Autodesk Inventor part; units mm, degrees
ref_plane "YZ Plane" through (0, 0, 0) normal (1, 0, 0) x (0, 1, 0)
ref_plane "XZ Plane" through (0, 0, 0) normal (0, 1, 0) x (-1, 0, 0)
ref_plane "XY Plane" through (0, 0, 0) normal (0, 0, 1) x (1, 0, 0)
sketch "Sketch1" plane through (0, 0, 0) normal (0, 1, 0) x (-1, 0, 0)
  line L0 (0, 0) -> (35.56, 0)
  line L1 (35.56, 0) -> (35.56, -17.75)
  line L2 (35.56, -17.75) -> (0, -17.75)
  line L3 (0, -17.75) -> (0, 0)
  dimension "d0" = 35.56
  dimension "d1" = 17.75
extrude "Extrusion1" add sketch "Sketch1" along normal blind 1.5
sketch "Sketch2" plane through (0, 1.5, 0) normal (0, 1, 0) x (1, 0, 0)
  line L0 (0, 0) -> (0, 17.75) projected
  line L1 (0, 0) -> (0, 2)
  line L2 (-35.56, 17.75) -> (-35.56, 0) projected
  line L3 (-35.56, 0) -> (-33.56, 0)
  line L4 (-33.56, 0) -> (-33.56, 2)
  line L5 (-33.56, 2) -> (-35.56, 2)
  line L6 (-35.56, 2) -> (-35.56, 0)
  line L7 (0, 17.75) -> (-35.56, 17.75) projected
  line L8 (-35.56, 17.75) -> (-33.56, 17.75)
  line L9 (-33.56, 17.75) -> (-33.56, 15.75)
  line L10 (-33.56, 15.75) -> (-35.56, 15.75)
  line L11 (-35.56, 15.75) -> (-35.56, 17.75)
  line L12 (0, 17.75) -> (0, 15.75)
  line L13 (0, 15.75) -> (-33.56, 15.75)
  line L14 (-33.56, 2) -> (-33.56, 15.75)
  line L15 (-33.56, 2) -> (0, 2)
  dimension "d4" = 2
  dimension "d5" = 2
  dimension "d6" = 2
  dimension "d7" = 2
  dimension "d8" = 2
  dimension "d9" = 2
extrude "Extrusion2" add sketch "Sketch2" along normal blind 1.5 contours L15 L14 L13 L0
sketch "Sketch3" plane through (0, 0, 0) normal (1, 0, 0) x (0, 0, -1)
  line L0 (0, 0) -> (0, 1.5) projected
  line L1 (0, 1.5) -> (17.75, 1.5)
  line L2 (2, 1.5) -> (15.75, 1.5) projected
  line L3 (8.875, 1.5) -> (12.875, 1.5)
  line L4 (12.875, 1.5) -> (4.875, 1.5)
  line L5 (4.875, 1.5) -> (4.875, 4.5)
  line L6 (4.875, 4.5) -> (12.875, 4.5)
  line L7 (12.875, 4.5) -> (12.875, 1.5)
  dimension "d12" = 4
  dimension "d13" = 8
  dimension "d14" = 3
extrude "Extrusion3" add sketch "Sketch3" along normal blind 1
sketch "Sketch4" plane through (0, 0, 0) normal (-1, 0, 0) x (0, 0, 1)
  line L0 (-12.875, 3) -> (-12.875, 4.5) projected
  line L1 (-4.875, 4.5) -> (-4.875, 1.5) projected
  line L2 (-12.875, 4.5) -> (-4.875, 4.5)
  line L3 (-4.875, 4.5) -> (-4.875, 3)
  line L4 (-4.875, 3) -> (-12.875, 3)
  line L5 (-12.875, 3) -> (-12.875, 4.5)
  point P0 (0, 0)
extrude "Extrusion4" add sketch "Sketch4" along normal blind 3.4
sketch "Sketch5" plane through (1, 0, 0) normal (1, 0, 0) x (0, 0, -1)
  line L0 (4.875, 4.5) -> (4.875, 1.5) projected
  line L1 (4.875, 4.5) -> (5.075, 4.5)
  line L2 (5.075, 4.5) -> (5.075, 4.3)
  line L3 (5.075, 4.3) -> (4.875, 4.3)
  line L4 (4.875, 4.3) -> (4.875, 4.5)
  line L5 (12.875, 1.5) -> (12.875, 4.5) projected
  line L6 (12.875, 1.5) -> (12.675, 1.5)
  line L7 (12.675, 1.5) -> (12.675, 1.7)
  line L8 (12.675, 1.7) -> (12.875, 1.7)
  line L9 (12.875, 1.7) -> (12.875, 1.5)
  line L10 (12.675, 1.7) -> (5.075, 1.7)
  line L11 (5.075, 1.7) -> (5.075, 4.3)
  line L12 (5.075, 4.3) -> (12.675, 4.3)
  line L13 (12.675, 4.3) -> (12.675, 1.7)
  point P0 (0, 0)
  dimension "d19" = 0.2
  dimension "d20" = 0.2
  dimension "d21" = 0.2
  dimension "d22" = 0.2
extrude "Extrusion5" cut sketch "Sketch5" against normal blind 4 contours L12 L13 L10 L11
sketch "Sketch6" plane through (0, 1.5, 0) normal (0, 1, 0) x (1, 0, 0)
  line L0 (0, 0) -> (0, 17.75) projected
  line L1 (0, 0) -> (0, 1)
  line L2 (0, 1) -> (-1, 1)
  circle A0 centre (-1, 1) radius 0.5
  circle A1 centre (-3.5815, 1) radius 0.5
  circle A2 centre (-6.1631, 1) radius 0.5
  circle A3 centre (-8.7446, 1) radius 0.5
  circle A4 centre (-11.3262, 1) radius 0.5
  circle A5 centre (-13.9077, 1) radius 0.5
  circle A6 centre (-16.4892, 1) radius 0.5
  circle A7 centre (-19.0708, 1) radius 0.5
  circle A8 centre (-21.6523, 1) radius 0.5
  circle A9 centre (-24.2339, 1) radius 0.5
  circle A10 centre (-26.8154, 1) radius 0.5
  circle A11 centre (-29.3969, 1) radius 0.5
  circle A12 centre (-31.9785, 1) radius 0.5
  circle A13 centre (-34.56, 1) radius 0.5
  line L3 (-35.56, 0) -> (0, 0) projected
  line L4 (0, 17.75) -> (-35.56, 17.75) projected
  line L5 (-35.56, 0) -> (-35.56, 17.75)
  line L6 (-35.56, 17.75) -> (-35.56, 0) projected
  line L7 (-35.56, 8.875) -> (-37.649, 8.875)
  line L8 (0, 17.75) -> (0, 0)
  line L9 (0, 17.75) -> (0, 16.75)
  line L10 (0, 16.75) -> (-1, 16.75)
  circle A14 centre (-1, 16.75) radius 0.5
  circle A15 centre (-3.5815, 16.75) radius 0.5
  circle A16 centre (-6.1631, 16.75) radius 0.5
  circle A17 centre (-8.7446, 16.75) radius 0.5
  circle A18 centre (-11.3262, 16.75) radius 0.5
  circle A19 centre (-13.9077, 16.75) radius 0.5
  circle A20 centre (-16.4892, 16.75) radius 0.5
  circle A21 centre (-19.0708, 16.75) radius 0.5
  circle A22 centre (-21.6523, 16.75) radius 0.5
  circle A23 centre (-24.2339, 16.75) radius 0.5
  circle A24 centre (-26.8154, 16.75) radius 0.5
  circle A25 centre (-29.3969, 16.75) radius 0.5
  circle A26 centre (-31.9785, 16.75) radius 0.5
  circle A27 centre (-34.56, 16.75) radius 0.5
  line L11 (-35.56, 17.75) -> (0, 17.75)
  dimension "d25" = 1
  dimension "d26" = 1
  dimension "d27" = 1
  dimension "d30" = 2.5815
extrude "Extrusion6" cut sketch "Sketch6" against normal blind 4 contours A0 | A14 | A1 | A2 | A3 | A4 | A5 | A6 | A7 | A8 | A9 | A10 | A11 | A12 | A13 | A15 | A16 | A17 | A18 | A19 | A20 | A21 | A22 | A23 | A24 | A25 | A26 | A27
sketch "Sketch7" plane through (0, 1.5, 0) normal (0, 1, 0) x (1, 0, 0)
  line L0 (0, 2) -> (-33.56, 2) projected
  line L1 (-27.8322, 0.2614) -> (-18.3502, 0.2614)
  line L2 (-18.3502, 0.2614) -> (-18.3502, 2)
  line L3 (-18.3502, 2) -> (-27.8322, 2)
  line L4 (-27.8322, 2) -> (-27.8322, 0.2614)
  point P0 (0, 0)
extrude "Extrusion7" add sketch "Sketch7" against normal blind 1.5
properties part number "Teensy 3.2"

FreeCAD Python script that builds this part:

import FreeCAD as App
import Part
import Sketcher
Q = App.Units.Quantity

doc = App.newDocument("Part")
body = doc.addObject("PartDesign::Body", "Body")

sketch1 = body.newObject("Sketcher::SketchObject", "Sketch")
sketch1.AttachmentSupport = (doc.getObject("XZ_Plane"), [""])
sketch1.MapMode = "FlatFace"
sketch1.addGeometry(Part.LineSegment(App.Vector(-35.56, 0, 0), App.Vector(0, 0, 0)), False)
sketch1.addGeometry(Part.LineSegment(App.Vector(0, 0, 0), App.Vector(0, -17.75, 0)), False)
sketch1.addGeometry(Part.LineSegment(App.Vector(0, -17.75, 0), App.Vector(-35.56, -17.75, 0)), False)
sketch1.addGeometry(Part.LineSegment(App.Vector(-35.56, -17.75, 0), App.Vector(-35.56, 0, 0)), False)
sketch1.addConstraint(Sketcher.Constraint("Coincident", 0, 2, 1, 1))
sketch1.addConstraint(Sketcher.Constraint("Coincident", 1, 2, 2, 1))
sketch1.addConstraint(Sketcher.Constraint("Coincident", 2, 2, 3, 1))
sketch1.addConstraint(Sketcher.Constraint("Coincident", 3, 2, 0, 1))
sketch1.addConstraint(Sketcher.Constraint("Horizontal", 0))
sketch1.addConstraint(Sketcher.Constraint("Vertical", 1))
sketch1.addConstraint(Sketcher.Constraint("Horizontal", 2))
sketch1.addConstraint(Sketcher.Constraint("Vertical", 3))
sketch1.addConstraint(Sketcher.Constraint("Coincident", 0, 2, -1, 1))
sketch1.addConstraint(Sketcher.Constraint("DistanceX", 0, 1, 0, 2, Q("35.56 mm")))
sketch1.addConstraint(Sketcher.Constraint("DistanceY", 1, 2, 1, 1, Q("17.75 mm")))
pad1 = body.newObject("PartDesign::Pad", "Pad")
pad1.Profile = sketch1
pad1.Length = 1.5
pad1.Reversed = True

sketch2 = body.newObject("Sketcher::SketchObject", "Sketch001")
sketch2.AttachmentSupport = (doc.getObject("XZ_Plane"), [""])
sketch2.MapMode = "FlatFace"
sketch2.AttachmentOffset = App.Placement(App.Vector(0, 0, -1.5), App.Rotation())
sketch2.addGeometry(Part.LineSegment(App.Vector(-33.56, -2, 0), App.Vector(0, -2, 0)), False)
sketch2.addGeometry(Part.LineSegment(App.Vector(0, -2, 0), App.Vector(0, -15.75, 0)), False)
sketch2.addGeometry(Part.LineSegment(App.Vector(0, -15.75, 0), App.Vector(-33.56, -15.75, 0)), False)
sketch2.addGeometry(Part.LineSegment(App.Vector(-33.56, -15.75, 0), App.Vector(-33.56, -2, 0)), False)
sketch2.addConstraint(Sketcher.Constraint("Coincident", 0, 2, 1, 1))
sketch2.addConstraint(Sketcher.Constraint("Coincident", 1, 2, 2, 1))
sketch2.addConstraint(Sketcher.Constraint("Coincident", 2, 2, 3, 1))
sketch2.addConstraint(Sketcher.Constraint("Coincident", 3, 2, 0, 1))
sketch2.addConstraint(Sketcher.Constraint("Horizontal", 0))
sketch2.addConstraint(Sketcher.Constraint("Vertical", 1))
sketch2.addConstraint(Sketcher.Constraint("Horizontal", 2))
sketch2.addConstraint(Sketcher.Constraint("Vertical", 3))
sketch2.addConstraint(Sketcher.Constraint("PointOnObject", 0, 2, -2))
sketch2.addConstraint(Sketcher.Constraint("DistanceY", 0, 2, -1, 1, Q("2 mm")))
sketch2.addConstraint(Sketcher.Constraint("DistanceX", 0, 1, 0, 2, Q("33.56 mm")))
sketch2.addConstraint(Sketcher.Constraint("DistanceY", 1, 2, 1, 1, Q("13.75 mm")))
pad2 = body.newObject("PartDesign::Pad", "Pad001")
pad2.Profile = sketch2
pad2.Length = 1.5
pad2.Reversed = True

sketch3 = body.newObject("Sketcher::SketchObject", "Sketch002")
sketch3.AttachmentSupport = (doc.getObject("YZ_Plane"), [""])
sketch3.MapMode = "FlatFace"
sketch3.addGeometry(Part.LineSegment(App.Vector(4.5, -4.875, 0), App.Vector(1.5, -4.875, 0)), False)
sketch3.addGeometry(Part.LineSegment(App.Vector(1.5, -4.875, 0), App.Vector(1.5, -12.875, 0)), False)
sketch3.addGeometry(Part.LineSegment(App.Vector(1.5, -12.875, 0), App.Vector(4.5, -12.875, 0)), False)
sketch3.addGeometry(Part.LineSegment(App.Vector(4.5, -12.875, 0), App.Vector(4.5, -4.875, 0)), False)
sketch3.addConstraint(Sketcher.Constraint("Coincident", 0, 2, 1, 1))
sketch3.addConstraint(Sketcher.Constraint("Coincident", 1, 2, 2, 1))
sketch3.addConstraint(Sketcher.Constraint("Coincident", 2, 2, 3, 1))
sketch3.addConstraint(Sketcher.Constraint("Coincident", 3, 2, 0, 1))
sketch3.addConstraint(Sketcher.Constraint("Horizontal", 0))
sketch3.addConstraint(Sketcher.Constraint("Vertical", 1))
sketch3.addConstraint(Sketcher.Constraint("Horizontal", 2))
sketch3.addConstraint(Sketcher.Constraint("Vertical", 3))
sketch3.addConstraint(Sketcher.Constraint("DistanceX", 0, 2, 0, 1, Q("3 mm")))
sketch3.addConstraint(Sketcher.Constraint("DistanceY", 1, 2, 1, 1, Q("8 mm")))
sketch3.addConstraint(Sketcher.Constraint("DistanceX", -1, 1, 0, 2, Q("1.5 mm")))
sketch3.addConstraint(Sketcher.Constraint("DistanceY", 0, 2, -1, 1, Q("4.875 mm")))
pad3 = body.newObject("PartDesign::Pad", "Pad002")
pad3.Profile = sketch3
pad3.Length = 1

sketch4 = body.newObject("Sketcher::SketchObject", "Sketch003")
sketch4.AttachmentSupport = (doc.getObject("YZ_Plane"), [""])
sketch4.MapMode = "FlatFace"
sketch4.addGeometry(Part.LineSegment(App.Vector(4.5, -12.875, 0), App.Vector(3, -12.875, 0)), False)
sketch4.addGeometry(Part.LineSegment(App.Vector(3, -12.875, 0), App.Vector(3, -4.875, 0)), False)
sketch4.addGeometry(Part.LineSegment(App.Vector(3, -4.875, 0), App.Vector(4.5, -4.875, 0)), False)
sketch4.addGeometry(Part.LineSegment(App.Vector(4.5, -4.875, 0), App.Vector(4.5, -12.875, 0)), False)
sketch4.addConstraint(Sketcher.Constraint("Coincident", 0, 2, 1, 1))
sketch4.addConstraint(Sketcher.Constraint("Coincident", 1, 2, 2, 1))
sketch4.addConstraint(Sketcher.Constraint("Coincident", 2, 2, 3, 1))
sketch4.addConstraint(Sketcher.Constraint("Coincident", 3, 2, 0, 1))
sketch4.addConstraint(Sketcher.Constraint("Horizontal", 0))
sketch4.addConstraint(Sketcher.Constraint("Vertical", 1))
sketch4.addConstraint(Sketcher.Constraint("Horizontal", 2))
sketch4.addConstraint(Sketcher.Constraint("Vertical", 3))
sketch4.addConstraint(Sketcher.Constraint("DistanceY", 1, 1, 1, 2, Q("8 mm")))
sketch4.addConstraint(Sketcher.Constraint("DistanceX", 0, 2, 0, 1, Q("1.5 mm")))
sketch4.addConstraint(Sketcher.Constraint("DistanceX", -1, 1, 0, 2, Q("3 mm")))
sketch4.addConstraint(Sketcher.Constraint("DistanceY", 0, 2, -1, 1, Q("12.875 mm")))
pad4 = body.newObject("PartDesign::Pad", "Pad003")
pad4.Profile = sketch4
pad4.Length = 3.4
pad4.Reversed = True

sketch5 = body.newObject("Sketcher::SketchObject", "Sketch004")
sketch5.AttachmentSupport = (doc.getObject("YZ_Plane"), [""])
sketch5.MapMode = "FlatFace"
sketch5.AttachmentOffset = App.Placement(App.Vector(0, 0, 1), App.Rotation())
sketch5.addGeometry(Part.LineSegment(App.Vector(4.3, -12.675, 0), App.Vector(4.3, -5.075, 0)), False)
sketch5.addGeometry(Part.LineSegment(App.Vector(4.3, -5.075, 0), App.Vector(1.7, -5.075, 0)), False)
sketch5.addGeometry(Part.LineSegment(App.Vector(1.7, -5.075, 0), App.Vector(1.7, -12.675, 0)), False)
sketch5.addGeometry(Part.LineSegment(App.Vector(1.7, -12.675, 0), App.Vector(4.3, -12.675, 0)), False)
sketch5.addConstraint(Sketcher.Constraint("Coincident", 0, 2, 1, 1))
sketch5.addConstraint(Sketcher.Constraint("Coincident", 1, 2, 2, 1))
sketch5.addConstraint(Sketcher.Constraint("Coincident", 2, 2, 3, 1))
sketch5.addConstraint(Sketcher.Constraint("Coincident", 3, 2, 0, 1))
sketch5.addConstraint(Sketcher.Constraint("Vertical", 0))
sketch5.addConstraint(Sketcher.Constraint("Horizontal", 1))
sketch5.addConstraint(Sketcher.Constraint("Vertical", 2))
sketch5.addConstraint(Sketcher.Constraint("Horizontal", 3))
sketch5.addConstraint(Sketcher.Constraint("DistanceX", 1, 2, 1, 1, Q("2.6 mm")))
sketch5.addConstraint(Sketcher.Constraint("DistanceY", 0, 1, 0, 2, Q("7.6 mm")))
sketch5.addConstraint(Sketcher.Constraint("DistanceX", -1, 1, 0, 2, Q("4.3 mm")))
sketch5.addConstraint(Sketcher.Constraint("DistanceY", 0, 2, -1, 1, Q("5.075 mm")))
pocket1 = body.newObject("PartDesign::Pocket", "Pocket")
pocket1.Profile = sketch5
pocket1.Length = 4

sketch6 = body.newObject("Sketcher::SketchObject", "Sketch005")
sketch6.AttachmentSupport = (doc.getObject("XZ_Plane"), [""])
sketch6.MapMode = "FlatFace"
sketch6.AttachmentOffset = App.Placement(App.Vector(0, 0, -1.5), App.Rotation())
sketch6.addGeometry(Part.Circle(App.Vector(-1, -1, 0), App.Vector(0, 0, 1), 0.5), False)
sketch6.addGeometry(Part.Circle(App.Vector(-1, -16.75, 0), App.Vector(0, 0, 1), 0.5), False)
sketch6.addGeometry(Part.Circle(App.Vector(-3.5815, -1, 0), App.Vector(0, 0, 1), 0.5), False)
sketch6.addGeometry(Part.Circle(App.Vector(-6.1631, -1, 0), App.Vector(0, 0, 1), 0.5), False)
sketch6.addGeometry(Part.Circle(App.Vector(-8.7446, -1, 0), App.Vector(0, 0, 1), 0.5), False)
sketch6.addGeometry(Part.Circle(App.Vector(-11.3262, -1, 0), App.Vector(0, 0, 1), 0.5), False)
sketch6.addGeometry(Part.Circle(App.Vector(-13.9077, -1, 0), App.Vector(0, 0, 1), 0.5), False)
sketch6.addGeometry(Part.Circle(App.Vector(-16.4892, -1, 0), App.Vector(0, 0, 1), 0.5), False)
sketch6.addGeometry(Part.Circle(App.Vector(-19.0708, -1, 0), App.Vector(0, 0, 1), 0.5), False)
sketch6.addGeometry(Part.Circle(App.Vector(-21.6523, -1, 0), App.Vector(0, 0, 1), 0.5), False)
sketch6.addGeometry(Part.Circle(App.Vector(-24.2339, -1, 0), App.Vector(0, 0, 1), 0.5), False)
sketch6.addGeometry(Part.Circle(App.Vector(-26.8154, -1, 0), App.Vector(0, 0, 1), 0.5), False)
sketch6.addGeometry(Part.Circle(App.Vector(-29.3969, -1, 0), App.Vector(0, 0, 1), 0.5), False)
sketch6.addGeometry(Part.Circle(App.Vector(-31.9785, -1, 0), App.Vector(0, 0, 1), 0.5), False)
sketch6.addGeometry(Part.Circle(App.Vector(-34.56, -1, 0), App.Vector(0, 0, 1), 0.5), False)
sketch6.addGeometry(Part.Circle(App.Vector(-3.5815, -16.75, 0), App.Vector(0, 0, 1), 0.5), False)
sketch6.addGeometry(Part.Circle(App.Vector(-6.1631, -16.75, 0), App.Vector(0, 0, 1), 0.5), False)
sketch6.addGeometry(Part.Circle(App.Vector(-8.7446, -16.75, 0), App.Vector(0, 0, 1), 0.5), False)
sketch6.addGeometry(Part.Circle(App.Vector(-11.3262, -16.75, 0), App.Vector(0, 0, 1), 0.5), False)
sketch6.addGeometry(Part.Circle(App.Vector(-13.9077, -16.75, 0), App.Vector(0, 0, 1), 0.5), False)
sketch6.addGeometry(Part.Circle(App.Vector(-16.4892, -16.75, 0), App.Vector(0, 0, 1), 0.5), False)
sketch6.addGeometry(Part.Circle(App.Vector(-19.0708, -16.75, 0), App.Vector(0, 0, 1), 0.5), False)
sketch6.addGeometry(Part.Circle(App.Vector(-21.6523, -16.75, 0), App.Vector(0, 0, 1), 0.5), False)
sketch6.addGeometry(Part.Circle(App.Vector(-24.2339, -16.75, 0), App.Vector(0, 0, 1), 0.5), False)
sketch6.addGeometry(Part.Circle(App.Vector(-26.8154, -16.75, 0), App.Vector(0, 0, 1), 0.5), False)
sketch6.addGeometry(Part.Circle(App.Vector(-29.3969, -16.75, 0), App.Vector(0, 0, 1), 0.5), False)
sketch6.addGeometry(Part.Circle(App.Vector(-31.9785, -16.75, 0), App.Vector(0, 0, 1), 0.5), False)
sketch6.addGeometry(Part.Circle(App.Vector(-34.56, -16.75, 0), App.Vector(0, 0, 1), 0.5), False)
sketch6.addConstraint(Sketcher.Constraint("Equal", 0, 1))
sketch6.addConstraint(Sketcher.Constraint("Equal", 1, 2))
sketch6.addConstraint(Sketcher.Constraint("Equal", 2, 3))
sketch6.addConstraint(Sketcher.Constraint("Equal", 3, 4))
sketch6.addConstraint(Sketcher.Constraint("Equal", 4, 5))
sketch6.addConstraint(Sketcher.Constraint("Equal", 5, 6))
sketch6.addConstraint(Sketcher.Constraint("Equal", 6, 7))
sketch6.addConstraint(Sketcher.Constraint("Equal", 7, 8))
sketch6.addConstraint(Sketcher.Constraint("Equal", 8, 9))
sketch6.addConstraint(Sketcher.Constraint("Equal", 9, 10))
sketch6.addConstraint(Sketcher.Constraint("Equal", 10, 11))
sketch6.addConstraint(Sketcher.Constraint("Equal", 11, 12))
sketch6.addConstraint(Sketcher.Constraint("Equal", 12, 13))
sketch6.addConstraint(Sketcher.Constraint("Equal", 13, 14))
sketch6.addConstraint(Sketcher.Constraint("Equal", 14, 15))
sketch6.addConstraint(Sketcher.Constraint("Equal", 15, 16))
sketch6.addConstraint(Sketcher.Constraint("Equal", 16, 17))
sketch6.addConstraint(Sketcher.Constraint("Equal", 17, 18))
sketch6.addConstraint(Sketcher.Constraint("Equal", 18, 19))
sketch6.addConstraint(Sketcher.Constraint("Equal", 19, 20))
sketch6.addConstraint(Sketcher.Constraint("Equal", 20, 21))
sketch6.addConstraint(Sketcher.Constraint("Equal", 21, 22))
sketch6.addConstraint(Sketcher.Constraint("Equal", 22, 23))
sketch6.addConstraint(Sketcher.Constraint("Equal", 23, 24))
sketch6.addConstraint(Sketcher.Constraint("Equal", 24, 25))
sketch6.addConstraint(Sketcher.Constraint("Equal", 25, 26))
sketch6.addConstraint(Sketcher.Constraint("Equal", 26, 27))
sketch6.addConstraint(Sketcher.Constraint("Horizontal", 0, 3, 2, 3))
sketch6.addConstraint(Sketcher.Constraint("Horizontal", 2, 3, 3, 3))
sketch6.addConstraint(Sketcher.Constraint("Horizontal", 3, 3, 4, 3))
sketch6.addConstraint(Sketcher.Constraint("Horizontal", 4, 3, 5, 3))
sketch6.addConstraint(Sketcher.Constraint("Horizontal", 5, 3, 6, 3))
sketch6.addConstraint(Sketcher.Constraint("Horizontal", 6, 3, 7, 3))
sketch6.addConstraint(Sketcher.Constraint("Horizontal", 7, 3, 8, 3))
sketch6.addConstraint(Sketcher.Constraint("Horizontal", 8, 3, 9, 3))
sketch6.addConstraint(Sketcher.Constraint("Horizontal", 9, 3, 10, 3))
sketch6.addConstraint(Sketcher.Constraint("Horizontal", 10, 3, 11, 3))
sketch6.addConstraint(Sketcher.Constraint("Horizontal", 11, 3, 12, 3))
sketch6.addConstraint(Sketcher.Constraint("Horizontal", 12, 3, 13, 3))
sketch6.addConstraint(Sketcher.Constraint("Horizontal", 13, 3, 14, 3))
sketch6.addConstraint(Sketcher.Constraint("Horizontal", 1, 3, 15, 3))
sketch6.addConstraint(Sketcher.Constraint("Horizontal", 15, 3, 16, 3))
sketch6.addConstraint(Sketcher.Constraint("Horizontal", 16, 3, 17, 3))
sketch6.addConstraint(Sketcher.Constraint("Horizontal", 17, 3, 18, 3))
sketch6.addConstraint(Sketcher.Constraint("Horizontal", 18, 3, 19, 3))
sketch6.addConstraint(Sketcher.Constraint("Horizontal", 19, 3, 20, 3))
sketch6.addConstraint(Sketcher.Constraint("Horizontal", 20, 3, 21, 3))
sketch6.addConstraint(Sketcher.Constraint("Horizontal", 21, 3, 22, 3))
sketch6.addConstraint(Sketcher.Constraint("Horizontal", 22, 3, 23, 3))
sketch6.addConstraint(Sketcher.Constraint("Horizontal", 23, 3, 24, 3))
sketch6.addConstraint(Sketcher.Constraint("Horizontal", 24, 3, 25, 3))
sketch6.addConstraint(Sketcher.Constraint("Horizontal", 25, 3, 26, 3))
sketch6.addConstraint(Sketcher.Constraint("Horizontal", 26, 3, 27, 3))
sketch6.addConstraint(Sketcher.Constraint("Vertical", 0, 3, 1, 3))
sketch6.addConstraint(Sketcher.Constraint("Vertical", 2, 3, 15, 3))
sketch6.addConstraint(Sketcher.Constraint("Vertical", 3, 3, 16, 3))
sketch6.addConstraint(Sketcher.Constraint("Vertical", 4, 3, 17, 3))
sketch6.addConstraint(Sketcher.Constraint("Vertical", 5, 3, 18, 3))
sketch6.addConstraint(Sketcher.Constraint("Vertical", 6, 3, 19, 3))
sketch6.addConstraint(Sketcher.Constraint("Vertical", 7, 3, 20, 3))
sketch6.addConstraint(Sketcher.Constraint("Vertical", 8, 3, 21, 3))
sketch6.addConstraint(Sketcher.Constraint("Vertical", 9, 3, 22, 3))
sketch6.addConstraint(Sketcher.Constraint("Vertical", 10, 3, 23, 3))
sketch6.addConstraint(Sketcher.Constraint("Vertical", 11, 3, 24, 3))
sketch6.addConstraint(Sketcher.Constraint("Vertical", 12, 3, 25, 3))
sketch6.addConstraint(Sketcher.Constraint("Vertical", 13, 3, 26, 3))
sketch6.addConstraint(Sketcher.Constraint("Vertical", 14, 3, 27, 3))
sketch6.addConstraint(Sketcher.Constraint("Diameter", 0, Q("1 mm")))
sketch6.addConstraint(Sketcher.Constraint("DistanceX", 0, 3, -1, 1, Q("1 mm")))
sketch6.addConstraint(Sketcher.Constraint("DistanceY", 0, 3, -1, 1, Q("1 mm")))
sketch6.addConstraint(Sketcher.Constraint("DistanceX", 2, 3, 0, 3, Q("2.5815 mm")))
sketch6.addConstraint(Sketcher.Constraint("DistanceX", 3, 3, 2, 3, Q("2.5816 mm")))
sketch6.addConstraint(Sketcher.Constraint("DistanceX", 4, 3, 3, 3, Q("2.5815 mm")))
sketch6.addConstraint(Sketcher.Constraint("DistanceX", 5, 3, 4, 3, Q("2.5816 mm")))
sketch6.addConstraint(Sketcher.Constraint("DistanceX", 6, 3, 5, 3, Q("2.5815 mm")))
sketch6.addConstraint(Sketcher.Constraint("DistanceX", 7, 3, 6, 3, Q("2.5815 mm")))
sketch6.addConstraint(Sketcher.Constraint("DistanceX", 8, 3, 7, 3, Q("2.5816 mm")))
sketch6.addConstraint(Sketcher.Constraint("DistanceX", 9, 3, 8, 3, Q("2.5815 mm")))
sketch6.addConstraint(Sketcher.Constraint("DistanceX", 10, 3, 9, 3, Q("2.5816 mm")))
sketch6.addConstraint(Sketcher.Constraint("DistanceX", 11, 3, 10, 3, Q("2.5815 mm")))
sketch6.addConstraint(Sketcher.Constraint("DistanceX", 12, 3, 11, 3, Q("2.5815 mm")))
sketch6.addConstraint(Sketcher.Constraint("DistanceX", 13, 3, 12, 3, Q("2.5816 mm")))
sketch6.addConstraint(Sketcher.Constraint("DistanceX", 14, 3, 13, 3, Q("2.5815 mm")))
sketch6.addConstraint(Sketcher.Constraint("DistanceY", 1, 3, -1, 1, Q("16.75 mm")))
pocket2 = body.newObject("PartDesign::Pocket", "Pocket001")
pocket2.Profile = sketch6
pocket2.Length = 4
pocket2.Reversed = True

sketch7 = body.newObject("Sketcher::SketchObject", "Sketch006")
sketch7.AttachmentSupport = (doc.getObject("XZ_Plane"), [""])
sketch7.MapMode = "FlatFace"
sketch7.AttachmentOffset = App.Placement(App.Vector(0, 0, -1.5), App.Rotation())
sketch7.addGeometry(Part.LineSegment(App.Vector(-18.3502, -0.2614, 0), App.Vector(-18.3502, -2, 0)), False)
sketch7.addGeometry(Part.LineSegment(App.Vector(-18.3502, -2, 0), App.Vector(-27.8322, -2, 0)), False)
sketch7.addGeometry(Part.LineSegment(App.Vector(-27.8322, -2, 0), App.Vector(-27.8322, -0.2614, 0)), False)
sketch7.addGeometry(Part.LineSegment(App.Vector(-27.8322, -0.2614, 0), App.Vector(-18.3502, -0.2614, 0)), False)
sketch7.addConstraint(Sketcher.Constraint("Coincident", 0, 2, 1, 1))
sketch7.addConstraint(Sketcher.Constraint("Coincident", 1, 2, 2, 1))
sketch7.addConstraint(Sketcher.Constraint("Coincident", 2, 2, 3, 1))
sketch7.addConstraint(Sketcher.Constraint("Coincident", 3, 2, 0, 1))
sketch7.addConstraint(Sketcher.Constraint("Vertical", 0))
sketch7.addConstraint(Sketcher.Constraint("Horizontal", 1))
sketch7.addConstraint(Sketcher.Constraint("Vertical", 2))
sketch7.addConstraint(Sketcher.Constraint("Horizontal", 3))
sketch7.addConstraint(Sketcher.Constraint("DistanceY", 0, 2, -1, 1, Q("2 mm")))
sketch7.addConstraint(Sketcher.Constraint("DistanceX", 1, 2, 1, 1, Q("9.482 mm")))
sketch7.addConstraint(Sketcher.Constraint("DistanceY", 0, 2, 0, 1, Q("1.7386 mm")))
sketch7.addConstraint(Sketcher.Constraint("DistanceX", 0, 2, -1, 1, Q("18.3502 mm")))
pad5 = body.newObject("PartDesign::Pad", "Pad004")
pad5.Profile = sketch7
pad5.Length = 1.5

doc.recompute()
